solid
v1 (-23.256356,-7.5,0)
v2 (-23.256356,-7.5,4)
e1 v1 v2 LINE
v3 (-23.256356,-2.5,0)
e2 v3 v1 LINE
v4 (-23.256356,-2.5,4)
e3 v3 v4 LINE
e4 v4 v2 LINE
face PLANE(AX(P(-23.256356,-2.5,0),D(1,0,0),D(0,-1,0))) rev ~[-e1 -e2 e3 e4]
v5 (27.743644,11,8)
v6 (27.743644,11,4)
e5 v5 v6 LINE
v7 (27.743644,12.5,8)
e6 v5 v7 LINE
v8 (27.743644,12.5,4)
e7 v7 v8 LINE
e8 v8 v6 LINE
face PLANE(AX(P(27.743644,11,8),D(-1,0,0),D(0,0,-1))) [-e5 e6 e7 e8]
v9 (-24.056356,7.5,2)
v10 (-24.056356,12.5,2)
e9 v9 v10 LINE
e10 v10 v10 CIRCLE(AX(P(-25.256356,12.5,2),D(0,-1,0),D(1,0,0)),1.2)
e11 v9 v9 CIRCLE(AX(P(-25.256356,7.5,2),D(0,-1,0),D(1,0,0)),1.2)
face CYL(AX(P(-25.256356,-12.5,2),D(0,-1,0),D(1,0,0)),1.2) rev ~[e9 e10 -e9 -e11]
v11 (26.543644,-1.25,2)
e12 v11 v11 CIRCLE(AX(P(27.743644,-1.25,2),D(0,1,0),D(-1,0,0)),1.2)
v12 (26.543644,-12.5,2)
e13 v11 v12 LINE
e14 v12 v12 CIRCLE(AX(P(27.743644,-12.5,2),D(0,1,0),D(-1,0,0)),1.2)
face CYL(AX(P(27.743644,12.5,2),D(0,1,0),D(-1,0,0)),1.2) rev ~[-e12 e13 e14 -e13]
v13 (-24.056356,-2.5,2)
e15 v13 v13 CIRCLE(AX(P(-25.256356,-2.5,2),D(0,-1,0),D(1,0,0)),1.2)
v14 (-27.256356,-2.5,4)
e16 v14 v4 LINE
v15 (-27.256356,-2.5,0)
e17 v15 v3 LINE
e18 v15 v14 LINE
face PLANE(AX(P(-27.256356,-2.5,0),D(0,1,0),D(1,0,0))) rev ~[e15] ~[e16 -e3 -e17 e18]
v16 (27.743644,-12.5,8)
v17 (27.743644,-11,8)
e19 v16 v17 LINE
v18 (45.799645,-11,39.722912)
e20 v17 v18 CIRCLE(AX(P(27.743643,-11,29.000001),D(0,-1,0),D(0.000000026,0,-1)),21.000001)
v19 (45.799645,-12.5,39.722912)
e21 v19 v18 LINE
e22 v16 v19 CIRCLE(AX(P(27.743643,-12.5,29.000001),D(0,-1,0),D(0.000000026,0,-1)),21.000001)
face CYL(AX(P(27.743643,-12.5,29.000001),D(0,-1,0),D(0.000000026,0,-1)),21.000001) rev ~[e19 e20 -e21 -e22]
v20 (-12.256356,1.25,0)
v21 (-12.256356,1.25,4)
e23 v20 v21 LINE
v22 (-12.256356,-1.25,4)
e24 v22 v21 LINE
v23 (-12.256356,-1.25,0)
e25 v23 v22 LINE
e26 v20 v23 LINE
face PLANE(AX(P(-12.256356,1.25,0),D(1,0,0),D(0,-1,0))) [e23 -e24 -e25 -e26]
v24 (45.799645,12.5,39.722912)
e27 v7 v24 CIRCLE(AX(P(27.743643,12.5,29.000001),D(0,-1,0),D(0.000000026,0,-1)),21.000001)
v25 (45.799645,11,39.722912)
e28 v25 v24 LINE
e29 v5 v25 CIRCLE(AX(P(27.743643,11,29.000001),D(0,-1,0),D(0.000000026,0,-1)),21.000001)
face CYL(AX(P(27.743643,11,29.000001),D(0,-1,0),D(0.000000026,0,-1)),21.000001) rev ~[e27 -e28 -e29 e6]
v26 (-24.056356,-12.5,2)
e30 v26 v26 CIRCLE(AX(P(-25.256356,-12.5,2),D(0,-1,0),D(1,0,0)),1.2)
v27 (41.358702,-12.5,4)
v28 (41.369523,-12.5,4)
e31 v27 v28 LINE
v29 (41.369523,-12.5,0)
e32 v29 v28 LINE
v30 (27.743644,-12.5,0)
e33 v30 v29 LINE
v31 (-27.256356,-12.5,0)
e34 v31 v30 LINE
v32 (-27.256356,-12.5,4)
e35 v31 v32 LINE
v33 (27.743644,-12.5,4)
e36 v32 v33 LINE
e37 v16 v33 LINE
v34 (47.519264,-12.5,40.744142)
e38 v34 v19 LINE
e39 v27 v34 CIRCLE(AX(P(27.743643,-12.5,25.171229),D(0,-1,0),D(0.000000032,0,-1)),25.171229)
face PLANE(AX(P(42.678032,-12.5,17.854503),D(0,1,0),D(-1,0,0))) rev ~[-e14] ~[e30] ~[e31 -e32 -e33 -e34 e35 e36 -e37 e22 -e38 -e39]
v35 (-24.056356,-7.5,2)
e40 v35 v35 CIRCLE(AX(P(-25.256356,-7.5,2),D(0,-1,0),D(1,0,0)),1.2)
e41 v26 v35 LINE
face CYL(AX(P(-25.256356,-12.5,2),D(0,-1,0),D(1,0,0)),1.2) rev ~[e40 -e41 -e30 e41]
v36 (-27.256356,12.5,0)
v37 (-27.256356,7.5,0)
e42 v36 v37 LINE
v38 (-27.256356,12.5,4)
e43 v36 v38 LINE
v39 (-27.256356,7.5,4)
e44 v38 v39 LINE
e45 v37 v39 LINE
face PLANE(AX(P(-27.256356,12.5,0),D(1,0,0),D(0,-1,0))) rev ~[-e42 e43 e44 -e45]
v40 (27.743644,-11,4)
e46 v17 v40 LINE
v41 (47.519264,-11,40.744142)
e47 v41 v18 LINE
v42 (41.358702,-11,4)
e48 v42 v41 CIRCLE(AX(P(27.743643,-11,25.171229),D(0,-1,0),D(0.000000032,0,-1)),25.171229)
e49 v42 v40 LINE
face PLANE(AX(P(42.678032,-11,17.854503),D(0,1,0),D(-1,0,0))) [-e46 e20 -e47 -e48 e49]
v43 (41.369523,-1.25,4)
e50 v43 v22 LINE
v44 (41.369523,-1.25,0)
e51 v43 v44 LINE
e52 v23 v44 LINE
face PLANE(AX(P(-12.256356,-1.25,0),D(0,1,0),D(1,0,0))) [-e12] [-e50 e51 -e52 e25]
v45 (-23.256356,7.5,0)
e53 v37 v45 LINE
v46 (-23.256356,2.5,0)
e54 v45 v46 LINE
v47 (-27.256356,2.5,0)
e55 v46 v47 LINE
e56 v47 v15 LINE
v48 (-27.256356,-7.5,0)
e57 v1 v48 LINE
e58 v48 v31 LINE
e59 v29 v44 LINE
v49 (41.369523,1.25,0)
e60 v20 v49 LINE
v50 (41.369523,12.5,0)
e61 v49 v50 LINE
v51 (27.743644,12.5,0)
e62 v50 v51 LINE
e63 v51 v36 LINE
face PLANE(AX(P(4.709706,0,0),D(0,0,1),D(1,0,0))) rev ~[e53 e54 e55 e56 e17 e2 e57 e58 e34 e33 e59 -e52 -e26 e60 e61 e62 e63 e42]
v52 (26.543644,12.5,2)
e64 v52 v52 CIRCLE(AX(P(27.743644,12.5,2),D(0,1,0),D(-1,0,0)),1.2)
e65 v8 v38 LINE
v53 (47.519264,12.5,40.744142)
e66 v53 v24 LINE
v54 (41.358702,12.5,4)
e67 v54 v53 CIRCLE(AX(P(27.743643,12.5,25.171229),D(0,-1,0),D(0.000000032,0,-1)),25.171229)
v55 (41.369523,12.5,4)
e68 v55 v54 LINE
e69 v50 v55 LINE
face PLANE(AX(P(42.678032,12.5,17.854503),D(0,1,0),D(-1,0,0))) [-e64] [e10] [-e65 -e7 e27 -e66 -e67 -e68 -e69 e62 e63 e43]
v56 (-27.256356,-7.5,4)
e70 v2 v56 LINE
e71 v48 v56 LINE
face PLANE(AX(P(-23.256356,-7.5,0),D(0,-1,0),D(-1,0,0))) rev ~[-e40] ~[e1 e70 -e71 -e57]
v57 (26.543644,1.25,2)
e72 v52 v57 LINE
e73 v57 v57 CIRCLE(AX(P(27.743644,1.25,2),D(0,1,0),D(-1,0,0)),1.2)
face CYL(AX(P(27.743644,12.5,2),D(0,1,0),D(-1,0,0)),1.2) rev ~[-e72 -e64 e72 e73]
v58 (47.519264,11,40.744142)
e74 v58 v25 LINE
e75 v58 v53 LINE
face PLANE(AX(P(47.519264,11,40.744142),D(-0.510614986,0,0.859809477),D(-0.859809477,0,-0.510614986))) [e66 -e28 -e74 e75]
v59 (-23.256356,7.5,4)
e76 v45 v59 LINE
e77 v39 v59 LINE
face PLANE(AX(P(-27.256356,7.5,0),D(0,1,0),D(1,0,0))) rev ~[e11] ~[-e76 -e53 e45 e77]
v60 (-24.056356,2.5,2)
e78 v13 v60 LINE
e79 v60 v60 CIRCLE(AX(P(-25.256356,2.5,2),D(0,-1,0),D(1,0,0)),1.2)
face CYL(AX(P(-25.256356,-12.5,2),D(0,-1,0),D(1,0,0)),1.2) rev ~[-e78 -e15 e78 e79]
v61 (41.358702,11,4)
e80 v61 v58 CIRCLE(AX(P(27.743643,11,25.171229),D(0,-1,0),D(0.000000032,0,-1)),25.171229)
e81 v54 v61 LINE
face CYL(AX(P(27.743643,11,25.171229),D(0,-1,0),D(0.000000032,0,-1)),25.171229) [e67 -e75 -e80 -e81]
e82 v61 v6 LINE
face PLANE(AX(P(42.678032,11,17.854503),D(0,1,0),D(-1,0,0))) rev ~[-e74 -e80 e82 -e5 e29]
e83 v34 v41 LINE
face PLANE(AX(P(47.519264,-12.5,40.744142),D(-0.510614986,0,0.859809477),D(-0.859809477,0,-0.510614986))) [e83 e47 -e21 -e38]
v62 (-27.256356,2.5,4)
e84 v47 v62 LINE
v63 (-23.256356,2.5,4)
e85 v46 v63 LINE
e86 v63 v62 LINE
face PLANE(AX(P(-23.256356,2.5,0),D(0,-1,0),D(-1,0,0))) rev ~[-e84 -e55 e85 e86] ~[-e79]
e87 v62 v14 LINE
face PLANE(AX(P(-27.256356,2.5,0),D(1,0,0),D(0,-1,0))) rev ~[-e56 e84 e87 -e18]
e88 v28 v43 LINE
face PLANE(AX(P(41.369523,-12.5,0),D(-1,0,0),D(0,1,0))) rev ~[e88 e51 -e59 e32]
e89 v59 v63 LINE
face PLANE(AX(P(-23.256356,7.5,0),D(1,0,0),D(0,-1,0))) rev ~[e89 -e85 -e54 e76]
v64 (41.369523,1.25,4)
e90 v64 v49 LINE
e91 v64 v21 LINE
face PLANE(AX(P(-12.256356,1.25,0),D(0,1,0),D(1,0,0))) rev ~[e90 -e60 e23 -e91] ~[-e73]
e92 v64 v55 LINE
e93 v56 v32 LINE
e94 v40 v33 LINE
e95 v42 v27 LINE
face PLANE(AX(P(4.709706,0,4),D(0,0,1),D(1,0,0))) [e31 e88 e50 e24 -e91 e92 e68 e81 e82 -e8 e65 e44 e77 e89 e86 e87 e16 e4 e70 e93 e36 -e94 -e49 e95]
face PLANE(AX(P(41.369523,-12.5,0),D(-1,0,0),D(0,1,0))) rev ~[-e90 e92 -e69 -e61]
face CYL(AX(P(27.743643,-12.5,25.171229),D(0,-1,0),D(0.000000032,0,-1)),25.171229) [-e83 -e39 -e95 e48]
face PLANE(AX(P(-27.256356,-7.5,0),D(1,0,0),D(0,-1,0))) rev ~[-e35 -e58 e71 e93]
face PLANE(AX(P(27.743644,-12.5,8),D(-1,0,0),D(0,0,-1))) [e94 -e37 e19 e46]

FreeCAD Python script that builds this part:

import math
import FreeCAD as App
import Part
import Sketcher
from FreeCAD import Vector
Q = App.Units.Quantity


def add_polygon(sketch, points):
    """Adds a closed chain of lines whose ends are joined by coincident constraints."""
    first, n = sketch.GeometryCount, len(points)
    for a, b in zip(points, points[1:] + points[:1]):
        sketch.addGeometry(Part.LineSegment(App.Vector(*a, 0), App.Vector(*b, 0)), False)
    for i in range(n):
        sketch.addConstraint(Sketcher.Constraint("Coincident", first + i, 2, first + (i + 1) % n, 1))

doc = App.newDocument("Part")
body = doc.addObject("PartDesign::Body", "Body")

sketch1 = doc.addObject("Sketcher::SketchObject", "Sketch")
body.addObject(sketch1)
sketch1.AttachmentSupport = (doc.XY_Plane, [""])
sketch1.MapMode = "FlatFace"
add_polygon(sketch1, [(41.4, 12.5), (-27.3, 12.5), (-27.3, 7.5), (-23.3, 7.5), (-23.3, 2.5), (-27.3, 2.5), (-27.3, -2.5), (-23.3, -2.5), (-23.3, -7.5), (-27.3, -7.5), (-27.3, -12.5), (41.4, -12.5)])
sketch1.addConstraint(Sketcher.Constraint("Horizontal", 0))
sketch1.addConstraint(Sketcher.Constraint("Vertical", 1))
sketch1.addConstraint(Sketcher.Constraint("Horizontal", 2))
sketch1.addConstraint(Sketcher.Constraint("Vertical", 3))
sketch1.addConstraint(Sketcher.Constraint("Horizontal", 4))
sketch1.addConstraint(Sketcher.Constraint("Vertical", 5))
sketch1.addConstraint(Sketcher.Constraint("Horizontal", 6))
sketch1.addConstraint(Sketcher.Constraint("Vertical", 7))
sketch1.addConstraint(Sketcher.Constraint("Horizontal", 8))
sketch1.addConstraint(Sketcher.Constraint("Vertical", 9))
sketch1.addConstraint(Sketcher.Constraint("Horizontal", 10))
sketch1.addConstraint(Sketcher.Constraint("Vertical", 11))
sketch1.addConstraint(Sketcher.Constraint("Symmetric", 3, 2, 6, 2, -1))
sketch1.addConstraint(Sketcher.Constraint("Symmetric", 1, 2, 8, 2, -1))
sketch1.addConstraint(Sketcher.Constraint("Vertical", 1, 2, 4, 2))
sketch1.addConstraint(Sketcher.Constraint("Equal", 1, 3))
sketch1.addConstraint(Sketcher.Constraint("Equal", 3, 5))
sketch1.addConstraint(Sketcher.Constraint("Equal", 7, 9))
sketch1.addConstraint(Sketcher.Constraint("DistanceX", 2, 1, 2, 2, Q("4 mm")))
sketch1.addConstraint(Sketcher.Constraint("DistanceY", 1, 2, 1, 1, Q("5 mm")))
sketch1.addConstraint(Sketcher.Constraint("DistanceX", 0, 2, 0, 1, Q("68.625879 mm")))
sketch1.addConstraint(Sketcher.Constraint("DistanceX", 0, 2, -1, 1, Q("27.256356 mm")))
pad1 = doc.addObject("PartDesign::Pad", "Pad")
body.addObject(pad1)
pad1.Profile = sketch1
pad1.Length = 4

sketch2 = doc.addObject("Sketcher::SketchObject", "Sketch001")
body.addObject(sketch2)
sketch2.AttachmentSupport = (doc.XZ_Plane, [""])
sketch2.MapMode = "FlatFace"
sketch2.AttachmentOffset = App.Placement(Vector(0, 0, 12.5), App.Rotation())
sketch2.addGeometry(Part.Circle(Vector(-25.3, 2, 0), Vector(0, 0, 1), 1.2), False)
sketch2.addConstraint(Sketcher.Constraint("Diameter", 0, Q("2.4 mm")))
sketch2.addConstraint(Sketcher.Constraint("DistanceY", -1, 1, 0, 3, Q("2 mm")))
sketch2.addConstraint(Sketcher.Constraint("DistanceX", 0, 3, -1, 1, Q("25.256356 mm")))
pocket1 = doc.addObject("PartDesign::Pocket", "Pocket")
body.addObject(pocket1)
pocket1.Profile = sketch2
pocket1.Type = "ThroughAll"

sketch3 = doc.addObject("Sketcher::SketchObject", "Sketch002")
body.addObject(sketch3)
sketch3.AttachmentSupport = (doc.XZ_Plane, [""])
sketch3.MapMode = "FlatFace"
sketch3.AttachmentOffset = App.Placement(Vector(0, 0, 12.5), App.Rotation())
sketch3.addGeometry(Part.ArcOfCircle(Part.Circle(Vector(27.7, 29, 0), Vector(0, 0, 1), 21), math.radians(-90), math.radians(31)), False)
sketch3.addGeometry(Part.LineSegment(Vector(27.7, 8, 0), Vector(27.7, 0, 0)), False)
sketch3.addGeometry(Part.ArcOfCircle(Part.Circle(Vector(27.7, 25.2, 0), Vector(0, 0, 1), 25.2), math.radians(-90), math.radians(38)), False)
sketch3.addGeometry(Part.LineSegment(Vector(47.5, 40.7, 0), Vector(45.8, 39.7, 0)), False)
sketch3.addConstraint(Sketcher.Constraint("Coincident", 0, 1, 1, 1))
sketch3.addConstraint(Sketcher.Constraint("Coincident", 1, 2, 2, 1))
sketch3.addConstraint(Sketcher.Constraint("Coincident", 2, 2, 3, 1))
sketch3.addConstraint(Sketcher.Constraint("Coincident", 3, 2, 0, 2))
sketch3.addConstraint(Sketcher.Constraint("Vertical", 1))
sketch3.addConstraint(Sketcher.Constraint("PointOnObject", 1, 2, -1))
sketch3.addConstraint(Sketcher.Constraint("Vertical", 0, 3, 2, 3))
sketch3.addConstraint(Sketcher.Constraint("Vertical", 2, 3, 0, 1))
sketch3.addConstraint(Sketcher.Constraint("Radius", 0, Q("21.000001 mm")))
sketch3.addConstraint(Sketcher.Constraint("DistanceY", 1, 2, 1, 1, Q("8 mm")))
sketch3.addConstraint(Sketcher.Constraint("Distance", 3, Q("2 mm")))
sketch3.addConstraint(Sketcher.Constraint("Radius", 2, Q("25.171229 mm")))
sketch3.addConstraint(Sketcher.Constraint("DistanceX", 0, 3, 3, 2, Q("18.056002 mm")))
sketch3.addConstraint(Sketcher.Constraint("DistanceX", -1, 1, 0, 3, Q("27.743643 mm")))
pad2 = doc.addObject("PartDesign::Pad", "Pad001")
body.addObject(pad2)
pad2.Profile = sketch3
pad2.Length = 1.5
pad2.Reversed = True
doc.recompute()

linearpattern = doc.addObject("PartDesign::LinearPattern", "LinearPattern")
body.addObject(linearpattern)
linearpattern.Originals = [pad2]
linearpattern.Direction = (doc.Y_Axis, [""])
linearpattern.Mode = "offset"
linearpattern.Offset = 23.5
linearpattern.Occurrences = 2
body.Tip = linearpattern

sketch4 = doc.addObject("Sketcher::SketchObject", "Sketch003")
body.addObject(sketch4)
sketch4.AttachmentSupport = (doc.XZ_Plane, [""])
sketch4.MapMode = "FlatFace"
sketch4.AttachmentOffset = App.Placement(Vector(0, 0, -12.5), App.Rotation())
sketch4.addGeometry(Part.Circle(Vector(27.7, 2, 0), Vector(0, 0, 1), 1.2), False)
sketch4.addConstraint(Sketcher.Constraint("Diameter", 0, Q("2.4 mm")))
sketch4.addConstraint(Sketcher.Constraint("DistanceY", -1, 1, 0, 3, Q("2 mm")))
sketch4.addConstraint(Sketcher.Constraint("DistanceX", -1, 1, 0, 3, Q("27.743644 mm")))
pocket2 = doc.addObject("PartDesign::Pocket", "Pocket001")
body.addObject(pocket2)
pocket2.Profile = sketch4
pocket2.Type = "ThroughAll"
pocket2.Reversed = True

sketch5 = doc.addObject("Sketcher::SketchObject", "Sketch004")
body.addObject(sketch5)
sketch5.AttachmentSupport = (doc.XY_Plane, [""])
sketch5.MapMode = "FlatFace"
add_polygon(sketch5, [(-12.3, -1.2), (-12.3, 1.2), (45, 1.2), (45, -1.2)])
sketch5.addConstraint(Sketcher.Constraint("Vertical", 0))
sketch5.addConstraint(Sketcher.Constraint("Horizontal", 1))
sketch5.addConstraint(Sketcher.Constraint("Vertical", 2))
sketch5.addConstraint(Sketcher.Constraint("Horizontal", 3))
sketch5.addConstraint(Sketcher.Constraint("DistanceY", 0, 1, 0, 2, Q("2.5 mm")))
sketch5.addConstraint(Sketcher.Constraint("DistanceX", -1, 1, 1, 2, Q("45 mm")))
sketch5.addConstraint(Sketcher.Constraint("DistanceY", -1, 1, 0, 2, Q("1.25 mm")))
sketch5.addConstraint(Sketcher.Constraint("DistanceX", 1, 1, 1, 2, Q("57.256356 mm")))
pocket3 = doc.addObject("PartDesign::Pocket", "Pocket002")
body.addObject(pocket3)
pocket3.Profile = sketch5
pocket3.Type = "ThroughAll"
pocket3.Reversed = True

doc.recompute()
